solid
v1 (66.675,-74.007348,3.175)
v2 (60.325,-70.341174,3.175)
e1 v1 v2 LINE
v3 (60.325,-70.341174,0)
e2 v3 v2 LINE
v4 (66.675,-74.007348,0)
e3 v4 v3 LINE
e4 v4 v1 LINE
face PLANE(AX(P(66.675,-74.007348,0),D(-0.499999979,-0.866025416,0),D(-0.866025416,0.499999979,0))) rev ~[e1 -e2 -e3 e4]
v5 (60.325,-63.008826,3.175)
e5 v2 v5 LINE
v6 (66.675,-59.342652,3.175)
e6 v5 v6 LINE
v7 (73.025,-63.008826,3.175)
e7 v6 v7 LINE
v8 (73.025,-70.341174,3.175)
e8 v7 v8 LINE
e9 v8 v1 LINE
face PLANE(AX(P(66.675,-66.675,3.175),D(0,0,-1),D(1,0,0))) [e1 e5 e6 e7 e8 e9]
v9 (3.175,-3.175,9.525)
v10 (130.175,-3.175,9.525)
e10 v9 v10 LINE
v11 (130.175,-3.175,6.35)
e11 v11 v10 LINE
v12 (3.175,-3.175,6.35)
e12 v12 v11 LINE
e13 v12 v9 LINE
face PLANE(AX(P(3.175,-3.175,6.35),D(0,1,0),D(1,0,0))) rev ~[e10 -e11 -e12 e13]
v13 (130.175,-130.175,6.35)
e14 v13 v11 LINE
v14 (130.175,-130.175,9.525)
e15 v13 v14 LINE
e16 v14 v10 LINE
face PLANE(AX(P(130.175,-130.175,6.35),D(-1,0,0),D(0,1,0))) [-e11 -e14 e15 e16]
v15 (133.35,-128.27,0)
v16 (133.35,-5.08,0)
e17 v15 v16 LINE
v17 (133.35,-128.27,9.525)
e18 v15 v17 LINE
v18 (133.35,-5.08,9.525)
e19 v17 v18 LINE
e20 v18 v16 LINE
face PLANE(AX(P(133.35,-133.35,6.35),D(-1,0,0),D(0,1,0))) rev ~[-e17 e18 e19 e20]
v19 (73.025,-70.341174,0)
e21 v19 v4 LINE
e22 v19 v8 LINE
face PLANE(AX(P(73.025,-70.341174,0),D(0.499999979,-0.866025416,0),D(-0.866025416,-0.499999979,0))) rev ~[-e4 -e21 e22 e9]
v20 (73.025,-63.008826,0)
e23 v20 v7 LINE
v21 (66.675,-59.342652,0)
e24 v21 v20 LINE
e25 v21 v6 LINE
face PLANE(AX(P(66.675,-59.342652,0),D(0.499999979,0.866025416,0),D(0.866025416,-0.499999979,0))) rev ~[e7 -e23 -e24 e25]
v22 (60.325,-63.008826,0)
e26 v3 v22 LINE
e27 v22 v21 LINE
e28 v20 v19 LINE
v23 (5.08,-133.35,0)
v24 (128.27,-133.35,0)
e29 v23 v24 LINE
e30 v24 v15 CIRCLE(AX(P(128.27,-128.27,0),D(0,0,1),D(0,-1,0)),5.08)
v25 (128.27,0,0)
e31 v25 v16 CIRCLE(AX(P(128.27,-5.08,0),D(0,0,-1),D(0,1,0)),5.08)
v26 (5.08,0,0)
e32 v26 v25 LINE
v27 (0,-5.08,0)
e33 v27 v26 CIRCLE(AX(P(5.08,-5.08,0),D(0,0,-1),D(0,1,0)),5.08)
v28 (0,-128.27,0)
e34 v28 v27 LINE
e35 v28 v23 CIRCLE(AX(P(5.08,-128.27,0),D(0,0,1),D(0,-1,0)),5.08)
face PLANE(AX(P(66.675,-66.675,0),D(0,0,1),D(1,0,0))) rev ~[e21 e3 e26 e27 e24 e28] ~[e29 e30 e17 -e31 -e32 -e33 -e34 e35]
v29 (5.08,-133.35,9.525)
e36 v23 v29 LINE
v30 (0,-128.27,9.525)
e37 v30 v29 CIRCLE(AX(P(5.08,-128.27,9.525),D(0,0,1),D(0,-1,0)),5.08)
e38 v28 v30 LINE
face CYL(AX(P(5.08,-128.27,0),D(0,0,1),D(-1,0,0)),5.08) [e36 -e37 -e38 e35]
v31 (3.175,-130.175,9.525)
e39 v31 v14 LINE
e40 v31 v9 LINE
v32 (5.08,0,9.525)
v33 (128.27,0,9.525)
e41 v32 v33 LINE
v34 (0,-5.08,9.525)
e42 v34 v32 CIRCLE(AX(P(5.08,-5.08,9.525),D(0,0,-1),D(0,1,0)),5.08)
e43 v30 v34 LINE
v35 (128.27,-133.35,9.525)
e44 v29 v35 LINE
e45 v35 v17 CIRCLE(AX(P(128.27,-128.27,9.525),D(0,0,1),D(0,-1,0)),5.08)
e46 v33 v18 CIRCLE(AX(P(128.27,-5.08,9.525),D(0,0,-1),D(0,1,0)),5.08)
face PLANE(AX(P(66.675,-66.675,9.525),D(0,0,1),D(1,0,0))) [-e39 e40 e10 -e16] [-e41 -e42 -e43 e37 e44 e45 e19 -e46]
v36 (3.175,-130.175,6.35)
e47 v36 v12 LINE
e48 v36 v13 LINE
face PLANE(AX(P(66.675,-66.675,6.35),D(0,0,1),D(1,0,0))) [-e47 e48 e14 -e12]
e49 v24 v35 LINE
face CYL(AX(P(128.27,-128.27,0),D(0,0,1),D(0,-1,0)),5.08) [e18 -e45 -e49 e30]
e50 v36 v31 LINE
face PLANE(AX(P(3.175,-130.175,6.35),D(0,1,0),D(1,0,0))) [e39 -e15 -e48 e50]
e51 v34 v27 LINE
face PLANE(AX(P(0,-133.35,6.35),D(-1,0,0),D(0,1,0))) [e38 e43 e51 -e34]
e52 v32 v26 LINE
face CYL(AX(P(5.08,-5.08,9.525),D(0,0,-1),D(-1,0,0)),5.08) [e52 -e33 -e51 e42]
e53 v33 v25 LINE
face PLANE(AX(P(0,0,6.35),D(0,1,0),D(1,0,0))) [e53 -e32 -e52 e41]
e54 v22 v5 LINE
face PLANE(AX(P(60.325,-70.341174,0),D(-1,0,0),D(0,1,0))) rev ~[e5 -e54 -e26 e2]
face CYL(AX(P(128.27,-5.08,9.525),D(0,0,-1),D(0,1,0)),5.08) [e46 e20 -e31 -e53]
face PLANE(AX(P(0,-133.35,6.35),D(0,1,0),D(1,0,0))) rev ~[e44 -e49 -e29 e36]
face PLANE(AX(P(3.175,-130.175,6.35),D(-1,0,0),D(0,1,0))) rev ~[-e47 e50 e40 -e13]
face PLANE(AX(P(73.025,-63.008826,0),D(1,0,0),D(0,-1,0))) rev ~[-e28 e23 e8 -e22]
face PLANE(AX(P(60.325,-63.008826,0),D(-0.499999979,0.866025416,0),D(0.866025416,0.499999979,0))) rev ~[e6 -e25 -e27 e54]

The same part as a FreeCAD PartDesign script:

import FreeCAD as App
import Part
import Sketcher

V = App.Vector
Q = App.Units.Quantity


def edges_at(feature, points):
    """Names of the edges that pass closest to the given points."""
    edges = feature.Shape.Edges
    near = lambda p: min(range(len(edges)), key=lambda i: edges[i].distToShape(Part.Vertex(*p))[0])
    return sorted({f"Edge{near(p) + 1}" for p in points})

doc = App.newDocument("Part")
body = doc.addObject("PartDesign::Body", "Body")

# Sketch on XY plane
sketch1 = body.newObject("Sketcher::SketchObject", "Sketch")
sketch1.AttachmentSupport = (doc.getObject("XY_Plane"), [""])
sketch1.MapMode = "FlatFace"
sketch1.addGeometry(Part.LineSegment(V(0, 0, 0), V(0, -133.35, 0)), False)
sketch1.addGeometry(Part.LineSegment(V(0, -133.35, 0), V(133.35, -133.35, 0)), False)
sketch1.addGeometry(Part.LineSegment(V(133.35, -133.35, 0), V(133.35, 0, 0)), False)
sketch1.addGeometry(Part.LineSegment(V(133.35, 0, 0), V(0, 0, 0)), False)
sketch1.addConstraint(Sketcher.Constraint("Coincident", 0, 2, 1, 1))
sketch1.addConstraint(Sketcher.Constraint("Coincident", 1, 2, 2, 1))
sketch1.addConstraint(Sketcher.Constraint("Coincident", 2, 2, 3, 1))
sketch1.addConstraint(Sketcher.Constraint("Coincident", 3, 2, 0, 1))
sketch1.addConstraint(Sketcher.Constraint("Vertical", 0))
sketch1.addConstraint(Sketcher.Constraint("Horizontal", 1))
sketch1.addConstraint(Sketcher.Constraint("Vertical", 2))
sketch1.addConstraint(Sketcher.Constraint("Horizontal", 3))
sketch1.addConstraint(Sketcher.Constraint("Coincident", 3, 2, -1, 1))
sketch1.addConstraint(Sketcher.Constraint("Equal", 3, 0))
sketch1.addConstraint(Sketcher.Constraint("DistanceX", 1, 1, 1, 2, Q("5.25 in")))
pad1 = body.newObject("PartDesign::Pad", "Pad")
pad1.Profile = sketch1
pad1.Length = Q("0.25 in")

# Sketch on XY plane
sketch2 = body.newObject("Sketcher::SketchObject", "Sketch001")
sketch2.AttachmentSupport = (doc.getObject("XY_Plane"), [""])
sketch2.MapMode = "FlatFace"
sketch2.AttachmentOffset = App.Placement(V(0, 0, 0.25 * 25.4), App.Rotation())
sketch2.addGeometry(Part.LineSegment(V(0, 0, 0), V(0, -133.35, 0)), False)
sketch2.addGeometry(Part.LineSegment(V(0, -133.35, 0), V(133.35, -133.35, 0)), False)
sketch2.addGeometry(Part.LineSegment(V(133.35, -133.35, 0), V(133.35, 0, 0)), False)
sketch2.addGeometry(Part.LineSegment(V(133.35, 0, 0), V(0, 0, 0)), False)
sketch2.addGeometry(Part.LineSegment(V(130.175, -130.175, 0), V(3.175, -130.175, 0)), False)
sketch2.addGeometry(Part.LineSegment(V(3.175, -130.175, 0), V(3.175, -3.175, 0)), False)
sketch2.addGeometry(Part.LineSegment(V(3.175, -3.175, 0), V(130.175, -3.175, 0)), False)
sketch2.addGeometry(Part.LineSegment(V(130.175, -3.175, 0), V(130.175, -130.175, 0)), False)
sketch2.addConstraint(Sketcher.Constraint("Coincident", 0, 2, 1, 1))
sketch2.addConstraint(Sketcher.Constraint("Coincident", 1, 2, 2, 1))
sketch2.addConstraint(Sketcher.Constraint("Coincident", 2, 2, 3, 1))
sketch2.addConstraint(Sketcher.Constraint("Coincident", 3, 2, 0, 1))
sketch2.addConstraint(Sketcher.Constraint("Coincident", 4, 2, 5, 1))
sketch2.addConstraint(Sketcher.Constraint("Coincident", 5, 2, 6, 1))
sketch2.addConstraint(Sketcher.Constraint("Coincident", 6, 2, 7, 1))
sketch2.addConstraint(Sketcher.Constraint("Coincident", 7, 2, 4, 1))
sketch2.addConstraint(Sketcher.Constraint("Vertical", 0))
sketch2.addConstraint(Sketcher.Constraint("Horizontal", 1))
sketch2.addConstraint(Sketcher.Constraint("Vertical", 2))
sketch2.addConstraint(Sketcher.Constraint("Horizontal", 3))
sketch2.addConstraint(Sketcher.Constraint("Horizontal", 4))
sketch2.addConstraint(Sketcher.Constraint("Vertical", 5))
sketch2.addConstraint(Sketcher.Constraint("Horizontal", 6))
sketch2.addConstraint(Sketcher.Constraint("Vertical", 7))
sketch2.addConstraint(Sketcher.Constraint("Coincident", 3, 2, -1, 1))
sketch2.addConstraint(Sketcher.Constraint("Equal", 3, 0))
sketch2.addConstraint(Sketcher.Constraint("Equal", 6, 5))
sketch2.addConstraint(Sketcher.Constraint("DistanceX", 4, 2, 4, 1, Q("5 in")))
sketch2.addConstraint(Sketcher.Constraint("DistanceX", 1, 1, 1, 2, Q("5.25 in")))
sketch2.addConstraint(Sketcher.Constraint("DistanceX", -1, 1, 4, 2, Q("0.125 in")))
sketch2.addConstraint(Sketcher.Constraint("DistanceY", 4, 2, -1, 1, Q("5.125 in")))
pad2 = body.newObject("PartDesign::Pad", "Pad001")
pad2.Profile = sketch2
pad2.Length = Q("0.125 in")

# Sketch on XY plane
sketch3 = body.newObject("Sketcher::SketchObject", "Sketch002")
sketch3.AttachmentSupport = (doc.getObject("XY_Plane"), [""])
sketch3.MapMode = "FlatFace"
sketch3.addGeometry(Part.LineSegment(V(73.025, -63.008826, 0), V(73.025, -70.341174, 0)), False)
sketch3.addGeometry(Part.LineSegment(V(73.025, -70.341174, 0), V(66.675, -74.007348, 0)), False)
sketch3.addGeometry(Part.LineSegment(V(66.675, -74.007348, 0), V(60.325, -70.341174, 0)), False)
sketch3.addGeometry(Part.LineSegment(V(60.325, -70.341174, 0), V(60.325, -63.008826, 0)), False)
sketch3.addGeometry(Part.LineSegment(V(60.325, -63.008826, 0), V(66.675, -59.342652, 0)), False)
sketch3.addGeometry(Part.LineSegment(V(66.675, -59.342652, 0), V(73.025, -63.008826, 0)), False)
sketch3.addConstraint(Sketcher.Constraint("Coincident", 0, 2, 1, 1))
sketch3.addConstraint(Sketcher.Constraint("Coincident", 1, 2, 2, 1))
sketch3.addConstraint(Sketcher.Constraint("Coincident", 2, 2, 3, 1))
sketch3.addConstraint(Sketcher.Constraint("Coincident", 3, 2, 4, 1))
sketch3.addConstraint(Sketcher.Constraint("Coincident", 4, 2, 5, 1))
sketch3.addConstraint(Sketcher.Constraint("Coincident", 5, 2, 0, 1))
sketch3.addConstraint(Sketcher.Constraint("Vertical", 0))
sketch3.addConstraint(Sketcher.Constraint("Vertical", 3))
sketch3.addConstraint(Sketcher.Constraint("Parallel", 1, 4))
sketch3.addConstraint(Sketcher.Constraint("Parallel", 2, 5))
sketch3.addConstraint(Sketcher.Constraint("Horizontal", 0, 2, 2, 2))
sketch3.addConstraint(Sketcher.Constraint("Horizontal", 3, 2, 5, 2))
sketch3.addConstraint(Sketcher.Constraint("Vertical", 1, 2, 4, 2))
sketch3.addConstraint(Sketcher.Constraint("Angle", 1, Q("-150.000001 deg")))
sketch3.addConstraint(Sketcher.Constraint("DistanceX", 2, 2, 0, 2, Q("0.5 in")))
sketch3.addConstraint(Sketcher.Constraint("DistanceX", -1, 1, 0, 2, Q("2.875 in")))
sketch3.addConstraint(Sketcher.Constraint("DistanceY", 0, 2, 0, 1, Q("7.332348 mm")))
sketch3.addConstraint(Sketcher.Constraint("DistanceY", 0, 2, -1, 1, Q("70.341174 mm")))
pocket1 = body.newObject("PartDesign::Pocket", "Pocket")
pocket1.Profile = sketch3
pocket1.Length = Q("0.125 in")
pocket1.Reversed = True
doc.recompute()

fillet = body.newObject("PartDesign::Fillet", "Fillet")
fillet.Base = (pocket1, edges_at(pocket1, [
    (133.35, -133.35, 4.763),
    (133.35, 0, 4.763),
    (0, 0, 4.763),
    (0, -133.35, 4.763),
]))
fillet.Radius = Q("0.2 in")

doc.recompute()
